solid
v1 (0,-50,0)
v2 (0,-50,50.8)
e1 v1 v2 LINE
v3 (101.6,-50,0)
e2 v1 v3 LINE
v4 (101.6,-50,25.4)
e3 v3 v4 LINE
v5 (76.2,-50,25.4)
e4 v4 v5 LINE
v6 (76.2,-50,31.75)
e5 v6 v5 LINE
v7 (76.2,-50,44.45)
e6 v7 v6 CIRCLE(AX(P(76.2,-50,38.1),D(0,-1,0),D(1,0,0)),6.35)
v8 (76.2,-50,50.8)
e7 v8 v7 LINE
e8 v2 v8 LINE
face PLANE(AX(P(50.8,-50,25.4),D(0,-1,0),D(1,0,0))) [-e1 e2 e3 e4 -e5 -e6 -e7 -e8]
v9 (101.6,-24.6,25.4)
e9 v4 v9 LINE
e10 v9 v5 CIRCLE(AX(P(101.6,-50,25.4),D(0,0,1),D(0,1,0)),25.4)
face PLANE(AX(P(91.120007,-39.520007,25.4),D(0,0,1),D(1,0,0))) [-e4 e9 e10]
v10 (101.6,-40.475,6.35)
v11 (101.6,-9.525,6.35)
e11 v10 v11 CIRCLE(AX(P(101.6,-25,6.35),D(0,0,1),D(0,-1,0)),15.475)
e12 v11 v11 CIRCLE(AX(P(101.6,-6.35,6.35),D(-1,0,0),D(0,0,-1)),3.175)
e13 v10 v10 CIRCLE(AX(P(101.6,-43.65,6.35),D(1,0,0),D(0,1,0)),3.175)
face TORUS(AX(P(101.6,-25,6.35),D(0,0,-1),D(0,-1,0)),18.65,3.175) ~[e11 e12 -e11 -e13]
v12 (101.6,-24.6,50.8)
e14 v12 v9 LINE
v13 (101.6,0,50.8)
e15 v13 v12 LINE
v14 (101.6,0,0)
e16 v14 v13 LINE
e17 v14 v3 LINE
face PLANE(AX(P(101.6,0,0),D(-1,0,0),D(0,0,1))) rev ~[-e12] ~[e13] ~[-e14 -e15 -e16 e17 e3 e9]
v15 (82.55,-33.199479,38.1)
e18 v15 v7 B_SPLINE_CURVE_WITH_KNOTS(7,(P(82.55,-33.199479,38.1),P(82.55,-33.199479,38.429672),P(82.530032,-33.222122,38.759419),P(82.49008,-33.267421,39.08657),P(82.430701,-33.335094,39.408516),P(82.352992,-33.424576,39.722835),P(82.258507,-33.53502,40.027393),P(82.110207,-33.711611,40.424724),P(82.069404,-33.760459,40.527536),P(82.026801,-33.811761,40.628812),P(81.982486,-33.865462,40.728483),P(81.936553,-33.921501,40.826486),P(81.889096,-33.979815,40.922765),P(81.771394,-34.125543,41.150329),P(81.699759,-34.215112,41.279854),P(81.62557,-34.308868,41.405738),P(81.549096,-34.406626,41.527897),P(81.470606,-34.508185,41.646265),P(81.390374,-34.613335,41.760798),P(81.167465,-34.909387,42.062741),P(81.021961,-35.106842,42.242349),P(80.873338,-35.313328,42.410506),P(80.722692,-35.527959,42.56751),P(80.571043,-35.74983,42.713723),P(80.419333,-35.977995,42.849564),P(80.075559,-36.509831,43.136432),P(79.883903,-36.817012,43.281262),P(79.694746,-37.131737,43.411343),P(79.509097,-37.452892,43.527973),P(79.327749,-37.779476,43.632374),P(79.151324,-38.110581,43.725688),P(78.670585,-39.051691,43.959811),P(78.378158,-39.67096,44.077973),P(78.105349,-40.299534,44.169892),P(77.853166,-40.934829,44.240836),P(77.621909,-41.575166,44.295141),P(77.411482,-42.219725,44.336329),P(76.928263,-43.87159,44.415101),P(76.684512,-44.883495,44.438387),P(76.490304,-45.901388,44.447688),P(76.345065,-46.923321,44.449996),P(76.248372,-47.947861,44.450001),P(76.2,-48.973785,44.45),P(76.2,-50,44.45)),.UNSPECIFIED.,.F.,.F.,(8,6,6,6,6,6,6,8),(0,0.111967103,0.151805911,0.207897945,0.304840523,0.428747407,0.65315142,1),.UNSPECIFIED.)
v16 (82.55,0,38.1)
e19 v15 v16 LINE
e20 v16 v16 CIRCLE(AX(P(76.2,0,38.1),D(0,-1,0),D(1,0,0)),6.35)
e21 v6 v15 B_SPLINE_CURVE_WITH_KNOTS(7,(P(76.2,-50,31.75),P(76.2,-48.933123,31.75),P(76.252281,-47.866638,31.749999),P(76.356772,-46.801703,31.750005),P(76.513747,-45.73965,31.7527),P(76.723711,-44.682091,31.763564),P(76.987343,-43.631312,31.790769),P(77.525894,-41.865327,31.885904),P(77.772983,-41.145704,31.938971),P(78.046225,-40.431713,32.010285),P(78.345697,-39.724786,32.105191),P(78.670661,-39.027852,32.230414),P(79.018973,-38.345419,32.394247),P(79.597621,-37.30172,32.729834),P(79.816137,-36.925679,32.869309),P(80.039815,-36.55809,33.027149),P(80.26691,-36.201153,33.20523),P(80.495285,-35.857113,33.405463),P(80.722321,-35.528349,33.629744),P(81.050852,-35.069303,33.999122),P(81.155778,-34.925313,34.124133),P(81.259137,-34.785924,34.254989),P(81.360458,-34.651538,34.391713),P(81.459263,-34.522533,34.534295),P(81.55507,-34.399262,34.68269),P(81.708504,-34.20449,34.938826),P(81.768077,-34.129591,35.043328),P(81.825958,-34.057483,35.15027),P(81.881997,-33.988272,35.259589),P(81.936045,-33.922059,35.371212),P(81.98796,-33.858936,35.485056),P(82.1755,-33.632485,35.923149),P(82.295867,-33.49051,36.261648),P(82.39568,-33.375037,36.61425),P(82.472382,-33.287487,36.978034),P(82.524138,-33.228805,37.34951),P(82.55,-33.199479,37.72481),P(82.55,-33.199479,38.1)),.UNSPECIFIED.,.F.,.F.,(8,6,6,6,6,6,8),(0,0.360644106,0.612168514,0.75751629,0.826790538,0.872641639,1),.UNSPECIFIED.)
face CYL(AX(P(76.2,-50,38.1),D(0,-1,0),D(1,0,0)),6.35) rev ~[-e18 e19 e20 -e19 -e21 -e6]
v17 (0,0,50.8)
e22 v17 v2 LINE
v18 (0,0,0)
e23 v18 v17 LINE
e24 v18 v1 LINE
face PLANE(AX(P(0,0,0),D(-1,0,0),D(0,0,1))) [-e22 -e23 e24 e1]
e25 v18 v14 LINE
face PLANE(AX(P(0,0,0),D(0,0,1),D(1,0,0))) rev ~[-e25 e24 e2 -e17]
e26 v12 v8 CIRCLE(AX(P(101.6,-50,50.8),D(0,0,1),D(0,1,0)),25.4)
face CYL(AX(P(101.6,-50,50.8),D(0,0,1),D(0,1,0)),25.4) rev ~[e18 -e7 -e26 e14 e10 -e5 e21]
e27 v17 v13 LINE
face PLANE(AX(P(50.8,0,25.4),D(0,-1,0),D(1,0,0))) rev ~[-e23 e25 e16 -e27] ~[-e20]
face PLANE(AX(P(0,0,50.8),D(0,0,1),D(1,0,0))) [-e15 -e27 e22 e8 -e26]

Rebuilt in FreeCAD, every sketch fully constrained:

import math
import FreeCAD as App
import Part
import Sketcher

V = App.Vector
Q = App.Units.Quantity


def add_polygon(sketch, points):
    """Adds a closed chain of lines whose ends are joined by coincident constraints."""
    first, n = sketch.GeometryCount, len(points)
    for a, b in zip(points, points[1:] + points[:1]):
        sketch.addGeometry(Part.LineSegment(App.Vector(*a, 0), App.Vector(*b, 0)), False)
    for i in range(n):
        sketch.addConstraint(Sketcher.Constraint("Coincident", first + i, 2, first + (i + 1) % n, 1))

doc = App.newDocument("Part")
body = doc.addObject("PartDesign::Body", "Body")

# Sketch on XZ plane
sketch1 = doc.addObject("Sketcher::SketchObject", "Sketch")
body.addObject(sketch1)
sketch1.AttachmentSupport = (doc.XZ_Plane, [""])
sketch1.MapMode = "FlatFace"
add_polygon(sketch1, [(0, 50.8), (0, 0), (101.6, 0), (101.6, 50.8)])  # lines 0-3
sketch1.addConstraint([
    Sketcher.Constraint("Vertical", 0),
    Sketcher.Constraint("Horizontal", 1),
    Sketcher.Constraint("Vertical", 2),
    Sketcher.Constraint("Horizontal", 3),
    Sketcher.Constraint("Coincident", 0, 2, -1, 1),
    Sketcher.Constraint("DistanceX", 1, 1, 1, 2, Q("4 in")),
    Sketcher.Constraint("DistanceY", 0, 2, 0, 1, Q("2 in")),
])
pad1 = doc.addObject("PartDesign::Pad", "Pad")
body.addObject(pad1)
pad1.Profile = sketch1
pad1.Length = 50

# Sketch on XY plane
sketch2 = doc.addObject("Sketcher::SketchObject", "Sketch001")
body.addObject(sketch2)
sketch2.AttachmentSupport = (doc.XY_Plane, [""])
sketch2.MapMode = "FlatFace"
sketch2.AttachmentOffset = App.Placement(V(0, 0, 2 * 25.4), App.Rotation())
sketch2.addGeometry([
    Part.ArcOfCircle(Part.Circle(V(101.6, -50, 0), V(0, 0, 1), 25.4), math.radians(90), math.radians(180)),
    Part.ArcOfCircle(Part.Circle(V(101.6, -50, 0), V(0, 0, 1), 25.4), math.radians(180), math.radians(360)),
    Part.ArcOfCircle(Part.Circle(V(101.6, -50, 0), V(0, 0, 1), 25.4), math.radians(0), math.radians(90)),
], False)
sketch2.addConstraint([
    Sketcher.Constraint("Tangent", 0, 2, 1, 1),
    Sketcher.Constraint("Tangent", 1, 2, 2, 1),
    Sketcher.Constraint("Tangent", 2, 2, 0, 1),
    Sketcher.Constraint("Horizontal", 2, 3, 0, 2),
    Sketcher.Constraint("Horizontal", 0, 2, 1, 2),
    Sketcher.Constraint("Vertical", 1, 3, 2, 2),
    Sketcher.Constraint("Radius", 0, Q("1 in")),
    Sketcher.Constraint("DistanceX", -1, 1, 0, 3, Q("4 in")),
    Sketcher.Constraint("DistanceY", 0, 3, -1, 1, Q("50 mm")),
])
pocket1 = doc.addObject("PartDesign::Pocket", "Pocket")
body.addObject(pocket1)
pocket1.Profile = sketch2
pocket1.Length = Q("1 in")

# Sketch on XZ plane
sketch3 = doc.addObject("Sketcher::SketchObject", "Sketch002")
body.addObject(sketch3)
sketch3.AttachmentSupport = (doc.XZ_Plane, [""])
sketch3.MapMode = "FlatFace"
sketch3.AttachmentOffset = App.Placement(V(0, 0, 50), App.Rotation())
sketch3.addGeometry(Part.Circle(V(76.2, 38.1, 0), V(0, 0, 1), 6.35), False)
sketch3.addConstraint([
    Sketcher.Constraint("Diameter", 0, Q("0.5 in")),
    Sketcher.Constraint("DistanceX", -1, 1, 0, 3, Q("3 in")),
    Sketcher.Constraint("DistanceY", -1, 1, 0, 3, Q("1.5 in")),
])
pocket2 = doc.addObject("PartDesign::Pocket", "Pocket001")
body.addObject(pocket2)
pocket2.Profile = sketch3
pocket2.Type = "ThroughAll"

# Sketch on YZ plane
sketch4 = doc.addObject("Sketcher::SketchObject", "Sketch003")
body.addObject(sketch4)
sketch4.AttachmentSupport = (doc.YZ_Plane, [""])
sketch4.MapMode = "FlatFace"
sketch4.AttachmentOffset = App.Placement(V(0, 0, 4 * 25.4), App.Rotation())
sketch4.addGeometry(Part.Circle(V(-43.65, 6.35, 0), V(0, 0, 1), 3.175), False)
sketch4.addGeometry(Part.LineSegment(V(-25, 6.35, 0), V(-25, 16.35, 0)), True)  # axis
sketch4.addConstraint([
    Sketcher.Constraint("Vertical", 1),
    Sketcher.Constraint("Horizontal", 0, 3, 1, 1),
    Sketcher.Constraint("Diameter", 0, Q("0.25 in")),
    Sketcher.Constraint("DistanceY", -1, 1, 0, 3, Q("0.25 in")),
    Sketcher.Constraint("DistanceY", 1, 1, 1, 2, Q("10 mm")),
    Sketcher.Constraint("DistanceX", 0, 3, -1, 1, Q("43.65 mm")),
    Sketcher.Constraint("DistanceX", 1, 1, -1, 1, Q("25 mm")),
])
revolution = doc.addObject("PartDesign::Revolution", "Revolution")
body.addObject(revolution)
revolution.Profile = sketch4
revolution.ReferenceAxis = (sketch4, ["Axis0"])
revolution.Angle = 360

doc.recompute()
